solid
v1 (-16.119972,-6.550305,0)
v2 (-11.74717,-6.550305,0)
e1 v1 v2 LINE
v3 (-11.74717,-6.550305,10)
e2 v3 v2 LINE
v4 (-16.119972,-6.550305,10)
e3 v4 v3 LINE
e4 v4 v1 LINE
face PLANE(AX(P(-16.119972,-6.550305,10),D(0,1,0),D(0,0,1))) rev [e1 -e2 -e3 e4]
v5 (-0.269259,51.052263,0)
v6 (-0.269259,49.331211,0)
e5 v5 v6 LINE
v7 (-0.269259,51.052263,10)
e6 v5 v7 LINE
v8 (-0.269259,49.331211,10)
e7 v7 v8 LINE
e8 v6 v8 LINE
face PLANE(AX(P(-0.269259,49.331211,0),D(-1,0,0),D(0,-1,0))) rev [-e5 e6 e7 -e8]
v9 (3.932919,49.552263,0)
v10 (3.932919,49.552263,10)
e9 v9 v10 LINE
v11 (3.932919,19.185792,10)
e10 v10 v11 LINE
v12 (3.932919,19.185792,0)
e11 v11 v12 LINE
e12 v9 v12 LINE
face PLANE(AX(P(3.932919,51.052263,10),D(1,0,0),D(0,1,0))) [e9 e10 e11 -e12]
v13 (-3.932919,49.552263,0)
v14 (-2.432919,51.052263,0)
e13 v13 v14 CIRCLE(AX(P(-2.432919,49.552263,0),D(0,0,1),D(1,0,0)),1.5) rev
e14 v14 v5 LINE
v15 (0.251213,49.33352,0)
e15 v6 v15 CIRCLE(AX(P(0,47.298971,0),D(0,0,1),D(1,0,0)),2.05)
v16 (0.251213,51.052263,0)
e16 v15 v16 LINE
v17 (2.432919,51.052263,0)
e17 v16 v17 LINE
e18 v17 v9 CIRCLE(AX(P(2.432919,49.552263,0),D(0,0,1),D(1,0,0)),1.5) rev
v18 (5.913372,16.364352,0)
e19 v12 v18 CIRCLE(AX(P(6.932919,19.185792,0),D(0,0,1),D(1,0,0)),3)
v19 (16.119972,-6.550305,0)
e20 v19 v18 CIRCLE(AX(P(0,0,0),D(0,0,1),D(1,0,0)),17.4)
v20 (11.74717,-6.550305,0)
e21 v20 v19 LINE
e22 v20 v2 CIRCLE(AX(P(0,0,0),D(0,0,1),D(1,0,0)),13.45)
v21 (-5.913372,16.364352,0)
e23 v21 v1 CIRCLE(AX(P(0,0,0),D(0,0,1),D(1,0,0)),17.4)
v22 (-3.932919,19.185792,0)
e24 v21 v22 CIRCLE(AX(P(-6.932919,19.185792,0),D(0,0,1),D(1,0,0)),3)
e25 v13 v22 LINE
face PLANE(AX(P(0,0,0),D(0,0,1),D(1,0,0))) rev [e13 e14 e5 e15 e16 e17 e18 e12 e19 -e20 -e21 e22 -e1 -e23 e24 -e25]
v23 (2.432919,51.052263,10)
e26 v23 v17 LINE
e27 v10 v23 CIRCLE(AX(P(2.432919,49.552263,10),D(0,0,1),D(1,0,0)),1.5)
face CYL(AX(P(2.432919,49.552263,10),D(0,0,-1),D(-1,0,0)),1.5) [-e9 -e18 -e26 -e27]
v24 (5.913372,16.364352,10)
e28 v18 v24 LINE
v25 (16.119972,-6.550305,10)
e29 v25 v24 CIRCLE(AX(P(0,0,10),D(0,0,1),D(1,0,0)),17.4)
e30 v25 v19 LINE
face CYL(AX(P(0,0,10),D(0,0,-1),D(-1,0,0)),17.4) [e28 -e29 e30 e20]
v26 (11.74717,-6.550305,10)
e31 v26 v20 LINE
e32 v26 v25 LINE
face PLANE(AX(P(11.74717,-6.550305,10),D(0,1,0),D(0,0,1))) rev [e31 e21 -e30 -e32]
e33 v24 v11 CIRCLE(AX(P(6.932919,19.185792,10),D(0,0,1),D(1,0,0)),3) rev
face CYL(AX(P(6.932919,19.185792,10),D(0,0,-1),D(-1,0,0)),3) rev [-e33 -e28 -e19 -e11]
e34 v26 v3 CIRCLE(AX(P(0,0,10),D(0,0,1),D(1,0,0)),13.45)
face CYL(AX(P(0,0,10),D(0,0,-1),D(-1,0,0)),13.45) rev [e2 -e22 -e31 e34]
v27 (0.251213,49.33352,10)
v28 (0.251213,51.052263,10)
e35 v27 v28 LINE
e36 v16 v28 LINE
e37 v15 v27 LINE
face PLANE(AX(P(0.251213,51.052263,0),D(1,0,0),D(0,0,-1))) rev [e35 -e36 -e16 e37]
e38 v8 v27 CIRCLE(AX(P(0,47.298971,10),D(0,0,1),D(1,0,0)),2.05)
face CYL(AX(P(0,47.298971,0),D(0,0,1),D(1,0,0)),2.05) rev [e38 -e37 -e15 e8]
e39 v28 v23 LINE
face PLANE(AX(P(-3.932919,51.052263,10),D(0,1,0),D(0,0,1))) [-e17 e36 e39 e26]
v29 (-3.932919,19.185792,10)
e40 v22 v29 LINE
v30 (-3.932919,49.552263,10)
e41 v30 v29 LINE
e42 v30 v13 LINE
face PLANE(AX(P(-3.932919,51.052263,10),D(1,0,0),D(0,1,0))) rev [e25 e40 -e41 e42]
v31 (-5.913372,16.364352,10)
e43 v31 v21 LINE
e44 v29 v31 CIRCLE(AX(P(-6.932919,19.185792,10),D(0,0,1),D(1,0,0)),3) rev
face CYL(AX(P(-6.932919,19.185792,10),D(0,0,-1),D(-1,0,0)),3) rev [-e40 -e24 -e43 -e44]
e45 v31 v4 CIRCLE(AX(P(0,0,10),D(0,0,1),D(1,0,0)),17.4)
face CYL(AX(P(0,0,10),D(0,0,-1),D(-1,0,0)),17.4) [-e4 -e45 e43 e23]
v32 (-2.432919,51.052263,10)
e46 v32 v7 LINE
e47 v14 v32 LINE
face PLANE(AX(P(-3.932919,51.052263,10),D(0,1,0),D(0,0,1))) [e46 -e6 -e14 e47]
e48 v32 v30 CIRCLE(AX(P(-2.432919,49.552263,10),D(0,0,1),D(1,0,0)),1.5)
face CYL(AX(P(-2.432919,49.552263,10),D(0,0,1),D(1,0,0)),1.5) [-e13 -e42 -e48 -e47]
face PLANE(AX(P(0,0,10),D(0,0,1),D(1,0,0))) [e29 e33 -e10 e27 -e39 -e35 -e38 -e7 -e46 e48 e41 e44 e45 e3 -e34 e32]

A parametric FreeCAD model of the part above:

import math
import FreeCAD as App
import Part
import Sketcher
from FreeCAD import Vector


def edges_at(feature, points):
    """Names of the edges that pass closest to the given points."""
    edges = feature.Shape.Edges
    near = lambda p: min(range(len(edges)), key=lambda i: edges[i].distToShape(Part.Vertex(*p))[0])
    return sorted({f"Edge{near(p) + 1}" for p in points})

doc = App.newDocument("Part")
body = doc.addObject("PartDesign::Body", "Body")

sketch1 = body.newObject("Sketcher::SketchObject", "Sketch")
sketch1.AttachmentSupport = (doc.getObject("XY_Plane"), [""])
sketch1.MapMode = "FlatFace"
sketch1.addGeometry([
    Part.LineSegment(Vector(3.932919, 16.949695, 0), Vector(3.932919, 51.052263, 0)),
    Part.LineSegment(Vector(3.932919, 51.052263, 0), Vector(-3.932919, 51.052263, 0)),
    Part.LineSegment(Vector(-3.932919, 51.052263, 0), Vector(-3.932919, 16.949695, 0)),
    Part.ArcOfCircle(Part.Circle(Vector(0, 0, 0), Vector(0, 0, 1), 17.4), math.radians(103.063444), math.radians(202.114228)),
    Part.LineSegment(Vector(-16.119972, -6.550305, 0), Vector(-11.74717, -6.550305, 0)),
    Part.ArcOfCircle(Part.Circle(Vector(0, 0, 0), Vector(0, 0, 1), 13.45), math.radians(-29.144348), math.radians(209.144348)),
    Part.LineSegment(Vector(11.74717, -6.550305, 0), Vector(16.119972, -6.550305, 0)),
    Part.ArcOfCircle(Part.Circle(Vector(0, 0, 0), Vector(0, 0, 1), 17.4), math.radians(-22.114228), math.radians(76.936556)),
], False)
sketch1.addConstraint([
    Sketcher.Constraint("Coincident", 0, 2, 1, 1),
    Sketcher.Constraint("Coincident", 1, 2, 2, 1),
    Sketcher.Constraint("Coincident", 2, 2, 3, 1),
    Sketcher.Constraint("Coincident", 3, 2, 4, 1),
    Sketcher.Constraint("Coincident", 4, 2, 5, 2),
    Sketcher.Constraint("Coincident", 5, 1, 6, 1),
    Sketcher.Constraint("Coincident", 6, 2, 7, 1),
    Sketcher.Constraint("Coincident", 7, 2, 0, 1),
    Sketcher.Constraint("Vertical", 0),
    Sketcher.Constraint("Horizontal", 1),
    Sketcher.Constraint("Vertical", 2),
    Sketcher.Constraint("Horizontal", 4),
    Sketcher.Constraint("Horizontal", 6),
    Sketcher.Constraint("Coincident", 3, 3, -1, 1),
    Sketcher.Constraint("Coincident", 5, 3, -1, 1),
    Sketcher.Constraint("Coincident", 7, 3, -1, 1),
    Sketcher.Constraint("Equal", 3, 7),
    Sketcher.Constraint("Horizontal", 4, 2, 5, 1),
    Sketcher.Constraint("Horizontal", 2, 2, 7, 2),
    Sketcher.Constraint("Radius", 3, 17.4),
    Sketcher.Constraint("Radius", 5, 13.45),
    Sketcher.Constraint("DistanceY", 3, 2, 2, 2, 23.5),
    Sketcher.Constraint("DistanceX", 1, 2, 1, 1, 7.865838),
    Sketcher.Constraint("DistanceY", 0, 1, 0, 2, 34.102568),
])
pad1 = body.newObject("PartDesign::Pad", "Pad")
pad1.Profile = sketch1
pad1.Length = 10
doc.recompute()

fillet = body.newObject("PartDesign::Fillet", "Fillet")
fillet.Base = (pad1, edges_at(pad1, [(-3.933, 51.052, 5), (3.933, 51.052, 5)]))
fillet.Radius = 1.5
doc.recompute()

fillet2 = body.newObject("PartDesign::Fillet", "Fillet001")
fillet2.Base = (fillet, edges_at(fillet, [(-3.933, 16.95, 5), (3.933, 16.95, 5)]))
fillet2.Radius = 3

sketch2 = body.newObject("Sketcher::SketchObject", "Sketch001")
sketch2.AttachmentSupport = (doc.getObject("XY_Plane"), [""])
sketch2.MapMode = "FlatFace"
sketch2.AttachmentOffset = App.Placement(Vector(0, 0, 10), App.Rotation())
sketch2.addGeometry([
    Part.LineSegment(Vector(-0.269259, 51.052263, 0), Vector(-0.269259, 49.331211, 0)),
    Part.ArcOfCircle(Part.Circle(Vector(0, 47.298971, 0), Vector(0, 0, 1), 2.05), math.radians(97.547357), math.radians(442.96112)),
    Part.LineSegment(Vector(0.251213, 49.33352, 0), Vector(0.251213, 51.052263, 0)),
    Part.LineSegment(Vector(0.251213, 51.052263, 0), Vector(-0.269259, 51.052263, 0)),
], False)
sketch2.addConstraint([
    Sketcher.Constraint("Coincident", 0, 2, 1, 1),
    Sketcher.Constraint("Coincident", 1, 2, 2, 1),
    Sketcher.Constraint("Coincident", 2, 2, 3, 1),
    Sketcher.Constraint("Coincident", 3, 2, 0, 1),
    Sketcher.Constraint("Vertical", 0),
    Sketcher.Constraint("Vertical", 2),
    Sketcher.Constraint("Horizontal", 3),
    Sketcher.Constraint("PointOnObject", 1, 3, -2),
    Sketcher.Constraint("Radius", 1, 2.05),
    Sketcher.Constraint("DistanceX", 3, 2, 3, 1, 0.520471),
    Sketcher.Constraint("DistanceY", 0, 2, 0, 1, 1.721052),
    Sketcher.Constraint("DistanceY", 2, 1, 2, 2, 1.718743),
    Sketcher.Constraint("DistanceY", -1, 1, 1, 3, 47.298971),
])
pocket1 = body.newObject("PartDesign::Pocket", "Pocket")
pocket1.Profile = sketch2
pocket1.Length = 10

doc.recompute()
